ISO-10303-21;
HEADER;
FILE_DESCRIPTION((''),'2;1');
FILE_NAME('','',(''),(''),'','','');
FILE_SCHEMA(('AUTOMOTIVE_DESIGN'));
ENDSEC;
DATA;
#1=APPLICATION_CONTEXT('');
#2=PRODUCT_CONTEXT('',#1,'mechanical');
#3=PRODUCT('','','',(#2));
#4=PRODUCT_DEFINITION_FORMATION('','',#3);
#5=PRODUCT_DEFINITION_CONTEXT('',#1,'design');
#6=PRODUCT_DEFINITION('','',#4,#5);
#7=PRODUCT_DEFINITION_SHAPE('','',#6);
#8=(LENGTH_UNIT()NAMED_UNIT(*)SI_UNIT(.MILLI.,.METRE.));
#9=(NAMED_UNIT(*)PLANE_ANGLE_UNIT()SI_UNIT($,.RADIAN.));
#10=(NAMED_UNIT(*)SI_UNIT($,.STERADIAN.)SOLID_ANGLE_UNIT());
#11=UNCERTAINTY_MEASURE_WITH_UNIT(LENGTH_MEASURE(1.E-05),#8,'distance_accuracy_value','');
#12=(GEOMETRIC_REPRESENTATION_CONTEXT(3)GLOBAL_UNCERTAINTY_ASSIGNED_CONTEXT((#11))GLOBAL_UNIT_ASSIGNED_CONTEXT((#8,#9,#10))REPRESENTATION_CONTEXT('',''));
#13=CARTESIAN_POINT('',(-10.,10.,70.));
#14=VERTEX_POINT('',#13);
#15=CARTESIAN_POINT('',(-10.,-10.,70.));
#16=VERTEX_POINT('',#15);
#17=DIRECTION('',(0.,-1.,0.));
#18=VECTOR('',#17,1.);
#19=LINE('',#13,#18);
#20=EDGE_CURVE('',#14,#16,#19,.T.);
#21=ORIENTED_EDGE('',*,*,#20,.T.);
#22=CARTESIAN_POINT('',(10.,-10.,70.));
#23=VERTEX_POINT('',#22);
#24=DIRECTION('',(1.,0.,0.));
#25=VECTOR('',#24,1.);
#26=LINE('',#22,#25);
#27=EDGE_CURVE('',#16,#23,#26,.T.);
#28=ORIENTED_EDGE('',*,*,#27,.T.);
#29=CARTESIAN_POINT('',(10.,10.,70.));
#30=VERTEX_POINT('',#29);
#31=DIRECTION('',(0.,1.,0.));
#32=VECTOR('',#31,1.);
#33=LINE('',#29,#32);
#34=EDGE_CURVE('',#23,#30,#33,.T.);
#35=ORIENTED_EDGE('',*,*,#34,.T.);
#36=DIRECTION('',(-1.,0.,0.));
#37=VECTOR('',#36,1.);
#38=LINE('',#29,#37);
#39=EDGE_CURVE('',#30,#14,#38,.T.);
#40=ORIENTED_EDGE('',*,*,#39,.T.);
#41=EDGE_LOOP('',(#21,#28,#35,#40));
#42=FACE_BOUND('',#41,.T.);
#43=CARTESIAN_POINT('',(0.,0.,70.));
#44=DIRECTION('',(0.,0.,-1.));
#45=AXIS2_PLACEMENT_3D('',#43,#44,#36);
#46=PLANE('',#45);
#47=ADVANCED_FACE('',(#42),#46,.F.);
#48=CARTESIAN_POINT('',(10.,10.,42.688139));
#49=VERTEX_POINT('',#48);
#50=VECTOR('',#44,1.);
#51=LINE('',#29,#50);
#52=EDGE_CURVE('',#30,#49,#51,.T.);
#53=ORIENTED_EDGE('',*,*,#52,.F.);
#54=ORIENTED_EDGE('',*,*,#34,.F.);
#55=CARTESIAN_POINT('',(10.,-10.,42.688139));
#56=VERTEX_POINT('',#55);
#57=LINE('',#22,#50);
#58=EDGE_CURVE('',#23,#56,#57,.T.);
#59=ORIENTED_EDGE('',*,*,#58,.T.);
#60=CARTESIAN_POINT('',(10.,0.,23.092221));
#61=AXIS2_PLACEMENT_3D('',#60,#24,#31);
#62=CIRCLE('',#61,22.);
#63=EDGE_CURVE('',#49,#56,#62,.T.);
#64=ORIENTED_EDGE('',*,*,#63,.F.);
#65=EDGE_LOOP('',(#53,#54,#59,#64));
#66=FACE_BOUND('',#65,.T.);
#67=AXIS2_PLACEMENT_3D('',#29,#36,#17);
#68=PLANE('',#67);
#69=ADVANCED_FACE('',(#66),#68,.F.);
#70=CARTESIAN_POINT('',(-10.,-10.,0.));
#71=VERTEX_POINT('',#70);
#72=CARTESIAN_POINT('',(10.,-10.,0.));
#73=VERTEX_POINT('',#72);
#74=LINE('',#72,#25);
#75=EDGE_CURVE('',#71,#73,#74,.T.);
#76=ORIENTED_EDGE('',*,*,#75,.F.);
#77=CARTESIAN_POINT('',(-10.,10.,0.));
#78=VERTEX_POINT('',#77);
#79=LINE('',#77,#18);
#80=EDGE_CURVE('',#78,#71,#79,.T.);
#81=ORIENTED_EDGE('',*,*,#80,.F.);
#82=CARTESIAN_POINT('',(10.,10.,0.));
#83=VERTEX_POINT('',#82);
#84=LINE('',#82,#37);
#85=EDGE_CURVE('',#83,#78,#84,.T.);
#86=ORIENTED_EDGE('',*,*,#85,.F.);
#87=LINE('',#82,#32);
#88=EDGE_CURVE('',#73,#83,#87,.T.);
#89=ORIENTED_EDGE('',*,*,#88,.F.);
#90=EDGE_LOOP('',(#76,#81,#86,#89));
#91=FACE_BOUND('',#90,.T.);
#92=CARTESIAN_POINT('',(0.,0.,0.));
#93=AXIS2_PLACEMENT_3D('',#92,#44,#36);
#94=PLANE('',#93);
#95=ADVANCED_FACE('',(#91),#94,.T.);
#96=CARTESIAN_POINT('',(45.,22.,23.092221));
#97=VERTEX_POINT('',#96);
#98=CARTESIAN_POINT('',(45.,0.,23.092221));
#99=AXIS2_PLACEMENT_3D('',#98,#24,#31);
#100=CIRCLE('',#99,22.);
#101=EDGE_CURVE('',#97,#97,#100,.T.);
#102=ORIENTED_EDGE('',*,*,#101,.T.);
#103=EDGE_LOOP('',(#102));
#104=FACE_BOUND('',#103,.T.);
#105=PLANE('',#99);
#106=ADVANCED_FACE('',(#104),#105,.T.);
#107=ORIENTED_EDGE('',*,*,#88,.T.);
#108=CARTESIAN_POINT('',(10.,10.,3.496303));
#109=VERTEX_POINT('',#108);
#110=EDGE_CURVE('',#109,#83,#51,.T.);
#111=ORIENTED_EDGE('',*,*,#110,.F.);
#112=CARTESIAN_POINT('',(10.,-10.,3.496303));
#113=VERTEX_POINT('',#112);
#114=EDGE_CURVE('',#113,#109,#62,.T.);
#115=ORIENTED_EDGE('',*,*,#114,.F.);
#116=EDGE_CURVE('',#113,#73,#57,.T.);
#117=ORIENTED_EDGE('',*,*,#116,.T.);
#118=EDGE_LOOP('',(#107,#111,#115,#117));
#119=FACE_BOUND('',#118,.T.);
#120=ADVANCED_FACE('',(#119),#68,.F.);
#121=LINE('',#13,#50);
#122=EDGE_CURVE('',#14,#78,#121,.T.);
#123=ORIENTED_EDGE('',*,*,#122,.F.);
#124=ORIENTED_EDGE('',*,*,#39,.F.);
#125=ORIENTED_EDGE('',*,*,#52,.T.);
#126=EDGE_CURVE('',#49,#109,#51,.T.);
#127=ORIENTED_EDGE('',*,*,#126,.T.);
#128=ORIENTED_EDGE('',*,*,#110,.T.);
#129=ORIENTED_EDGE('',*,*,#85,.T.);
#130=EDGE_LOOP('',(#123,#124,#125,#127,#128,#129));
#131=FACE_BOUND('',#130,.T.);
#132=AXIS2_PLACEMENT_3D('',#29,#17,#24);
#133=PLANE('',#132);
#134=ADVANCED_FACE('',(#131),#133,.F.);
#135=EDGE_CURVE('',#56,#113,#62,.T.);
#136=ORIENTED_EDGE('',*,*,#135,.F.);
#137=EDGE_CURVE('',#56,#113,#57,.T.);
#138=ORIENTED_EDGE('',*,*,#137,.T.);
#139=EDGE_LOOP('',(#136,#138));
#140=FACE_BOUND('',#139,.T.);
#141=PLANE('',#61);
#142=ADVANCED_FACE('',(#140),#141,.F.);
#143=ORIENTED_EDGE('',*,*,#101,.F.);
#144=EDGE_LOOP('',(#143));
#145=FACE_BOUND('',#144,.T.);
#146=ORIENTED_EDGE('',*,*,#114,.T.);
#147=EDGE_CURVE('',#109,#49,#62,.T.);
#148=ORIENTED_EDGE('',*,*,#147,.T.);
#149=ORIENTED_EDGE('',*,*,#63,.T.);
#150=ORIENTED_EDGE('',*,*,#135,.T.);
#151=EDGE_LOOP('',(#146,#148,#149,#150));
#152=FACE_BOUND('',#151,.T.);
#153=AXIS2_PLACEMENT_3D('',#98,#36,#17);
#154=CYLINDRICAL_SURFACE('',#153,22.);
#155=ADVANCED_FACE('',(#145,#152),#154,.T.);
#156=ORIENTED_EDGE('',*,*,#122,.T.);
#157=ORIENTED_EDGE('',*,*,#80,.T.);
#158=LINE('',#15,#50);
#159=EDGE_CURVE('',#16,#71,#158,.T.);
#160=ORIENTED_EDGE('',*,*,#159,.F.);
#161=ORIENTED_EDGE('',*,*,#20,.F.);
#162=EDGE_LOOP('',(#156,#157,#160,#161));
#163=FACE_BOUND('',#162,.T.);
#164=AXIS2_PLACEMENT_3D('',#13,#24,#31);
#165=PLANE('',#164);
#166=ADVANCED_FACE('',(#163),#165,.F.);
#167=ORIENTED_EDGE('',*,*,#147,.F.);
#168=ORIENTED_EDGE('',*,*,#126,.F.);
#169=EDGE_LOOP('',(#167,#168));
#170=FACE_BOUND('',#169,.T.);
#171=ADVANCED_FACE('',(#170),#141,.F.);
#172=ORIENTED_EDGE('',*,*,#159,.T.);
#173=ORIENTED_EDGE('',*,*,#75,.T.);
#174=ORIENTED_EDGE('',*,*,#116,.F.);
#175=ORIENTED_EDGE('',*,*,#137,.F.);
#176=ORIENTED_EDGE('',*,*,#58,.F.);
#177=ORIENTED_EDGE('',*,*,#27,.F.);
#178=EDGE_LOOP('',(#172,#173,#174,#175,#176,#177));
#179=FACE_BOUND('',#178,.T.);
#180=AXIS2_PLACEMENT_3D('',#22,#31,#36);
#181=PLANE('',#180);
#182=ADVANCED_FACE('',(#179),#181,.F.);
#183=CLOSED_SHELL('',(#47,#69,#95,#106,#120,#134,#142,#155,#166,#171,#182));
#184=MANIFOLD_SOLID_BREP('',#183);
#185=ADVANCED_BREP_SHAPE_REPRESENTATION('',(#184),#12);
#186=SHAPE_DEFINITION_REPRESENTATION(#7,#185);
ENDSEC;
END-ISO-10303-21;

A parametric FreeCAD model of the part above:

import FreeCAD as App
import Part
import Sketcher
from FreeCAD import Vector
Q = App.Units.Quantity


def add_polygon(sketch, points):
    """Adds a closed chain of lines whose ends are joined by coincident constraints."""
    first, n = sketch.GeometryCount, len(points)
    for a, b in zip(points, points[1:] + points[:1]):
        sketch.addGeometry(Part.LineSegment(App.Vector(*a, 0), App.Vector(*b, 0)), False)
    for i in range(n):
        sketch.addConstraint(Sketcher.Constraint("Coincident", first + i, 2, first + (i + 1) % n, 1))

doc = App.newDocument("Part")
body = doc.addObject("PartDesign::Body", "Body")

sketch1 = body.newObject("Sketcher::SketchObject", "Sketch")
sketch1.AttachmentSupport = (doc.getObject("XY_Plane"), [""])
sketch1.MapMode = "FlatFace"
add_polygon(sketch1, [(-10, 10), (-10, -10), (10, -10), (10, 10)])
sketch1.addConstraint([
    Sketcher.Constraint("Vertical", 0),
    Sketcher.Constraint("Horizontal", 1),
    Sketcher.Constraint("Vertical", 2),
    Sketcher.Constraint("Horizontal", 3),
    Sketcher.Constraint("Symmetric", 0, 2, 2, 2, -1, 1),
    Sketcher.Constraint("Equal", 3, 0),
    Sketcher.Constraint("DistanceX", 1, 1, 1, 2, Q("20 mm")),
])
pad1 = body.newObject("PartDesign::Pad", "Pad")
pad1.Profile = sketch1
pad1.Length = 70

sketch2 = body.newObject("Sketcher::SketchObject", "Sketch001")
sketch2.AttachmentSupport = (doc.getObject("YZ_Plane"), [""])
sketch2.MapMode = "FlatFace"
sketch2.AttachmentOffset = App.Placement(Vector(0, 0, 10), App.Rotation())
sketch2.addGeometry(Part.Circle(Vector(0, 23, 0), Vector(0, 0, 1), 22), False)
sketch2.addConstraint([
    Sketcher.Constraint("PointOnObject", 0, 3, -2),
    Sketcher.Constraint("Diameter", 0, Q("44 mm")),
    Sketcher.Constraint("DistanceY", -1, 1, 0, 3, Q("23.092221 mm")),
])
pad2 = body.newObject("PartDesign::Pad", "Pad001")
pad2.Profile = sketch2
pad2.Length = 35

doc.recompute()
